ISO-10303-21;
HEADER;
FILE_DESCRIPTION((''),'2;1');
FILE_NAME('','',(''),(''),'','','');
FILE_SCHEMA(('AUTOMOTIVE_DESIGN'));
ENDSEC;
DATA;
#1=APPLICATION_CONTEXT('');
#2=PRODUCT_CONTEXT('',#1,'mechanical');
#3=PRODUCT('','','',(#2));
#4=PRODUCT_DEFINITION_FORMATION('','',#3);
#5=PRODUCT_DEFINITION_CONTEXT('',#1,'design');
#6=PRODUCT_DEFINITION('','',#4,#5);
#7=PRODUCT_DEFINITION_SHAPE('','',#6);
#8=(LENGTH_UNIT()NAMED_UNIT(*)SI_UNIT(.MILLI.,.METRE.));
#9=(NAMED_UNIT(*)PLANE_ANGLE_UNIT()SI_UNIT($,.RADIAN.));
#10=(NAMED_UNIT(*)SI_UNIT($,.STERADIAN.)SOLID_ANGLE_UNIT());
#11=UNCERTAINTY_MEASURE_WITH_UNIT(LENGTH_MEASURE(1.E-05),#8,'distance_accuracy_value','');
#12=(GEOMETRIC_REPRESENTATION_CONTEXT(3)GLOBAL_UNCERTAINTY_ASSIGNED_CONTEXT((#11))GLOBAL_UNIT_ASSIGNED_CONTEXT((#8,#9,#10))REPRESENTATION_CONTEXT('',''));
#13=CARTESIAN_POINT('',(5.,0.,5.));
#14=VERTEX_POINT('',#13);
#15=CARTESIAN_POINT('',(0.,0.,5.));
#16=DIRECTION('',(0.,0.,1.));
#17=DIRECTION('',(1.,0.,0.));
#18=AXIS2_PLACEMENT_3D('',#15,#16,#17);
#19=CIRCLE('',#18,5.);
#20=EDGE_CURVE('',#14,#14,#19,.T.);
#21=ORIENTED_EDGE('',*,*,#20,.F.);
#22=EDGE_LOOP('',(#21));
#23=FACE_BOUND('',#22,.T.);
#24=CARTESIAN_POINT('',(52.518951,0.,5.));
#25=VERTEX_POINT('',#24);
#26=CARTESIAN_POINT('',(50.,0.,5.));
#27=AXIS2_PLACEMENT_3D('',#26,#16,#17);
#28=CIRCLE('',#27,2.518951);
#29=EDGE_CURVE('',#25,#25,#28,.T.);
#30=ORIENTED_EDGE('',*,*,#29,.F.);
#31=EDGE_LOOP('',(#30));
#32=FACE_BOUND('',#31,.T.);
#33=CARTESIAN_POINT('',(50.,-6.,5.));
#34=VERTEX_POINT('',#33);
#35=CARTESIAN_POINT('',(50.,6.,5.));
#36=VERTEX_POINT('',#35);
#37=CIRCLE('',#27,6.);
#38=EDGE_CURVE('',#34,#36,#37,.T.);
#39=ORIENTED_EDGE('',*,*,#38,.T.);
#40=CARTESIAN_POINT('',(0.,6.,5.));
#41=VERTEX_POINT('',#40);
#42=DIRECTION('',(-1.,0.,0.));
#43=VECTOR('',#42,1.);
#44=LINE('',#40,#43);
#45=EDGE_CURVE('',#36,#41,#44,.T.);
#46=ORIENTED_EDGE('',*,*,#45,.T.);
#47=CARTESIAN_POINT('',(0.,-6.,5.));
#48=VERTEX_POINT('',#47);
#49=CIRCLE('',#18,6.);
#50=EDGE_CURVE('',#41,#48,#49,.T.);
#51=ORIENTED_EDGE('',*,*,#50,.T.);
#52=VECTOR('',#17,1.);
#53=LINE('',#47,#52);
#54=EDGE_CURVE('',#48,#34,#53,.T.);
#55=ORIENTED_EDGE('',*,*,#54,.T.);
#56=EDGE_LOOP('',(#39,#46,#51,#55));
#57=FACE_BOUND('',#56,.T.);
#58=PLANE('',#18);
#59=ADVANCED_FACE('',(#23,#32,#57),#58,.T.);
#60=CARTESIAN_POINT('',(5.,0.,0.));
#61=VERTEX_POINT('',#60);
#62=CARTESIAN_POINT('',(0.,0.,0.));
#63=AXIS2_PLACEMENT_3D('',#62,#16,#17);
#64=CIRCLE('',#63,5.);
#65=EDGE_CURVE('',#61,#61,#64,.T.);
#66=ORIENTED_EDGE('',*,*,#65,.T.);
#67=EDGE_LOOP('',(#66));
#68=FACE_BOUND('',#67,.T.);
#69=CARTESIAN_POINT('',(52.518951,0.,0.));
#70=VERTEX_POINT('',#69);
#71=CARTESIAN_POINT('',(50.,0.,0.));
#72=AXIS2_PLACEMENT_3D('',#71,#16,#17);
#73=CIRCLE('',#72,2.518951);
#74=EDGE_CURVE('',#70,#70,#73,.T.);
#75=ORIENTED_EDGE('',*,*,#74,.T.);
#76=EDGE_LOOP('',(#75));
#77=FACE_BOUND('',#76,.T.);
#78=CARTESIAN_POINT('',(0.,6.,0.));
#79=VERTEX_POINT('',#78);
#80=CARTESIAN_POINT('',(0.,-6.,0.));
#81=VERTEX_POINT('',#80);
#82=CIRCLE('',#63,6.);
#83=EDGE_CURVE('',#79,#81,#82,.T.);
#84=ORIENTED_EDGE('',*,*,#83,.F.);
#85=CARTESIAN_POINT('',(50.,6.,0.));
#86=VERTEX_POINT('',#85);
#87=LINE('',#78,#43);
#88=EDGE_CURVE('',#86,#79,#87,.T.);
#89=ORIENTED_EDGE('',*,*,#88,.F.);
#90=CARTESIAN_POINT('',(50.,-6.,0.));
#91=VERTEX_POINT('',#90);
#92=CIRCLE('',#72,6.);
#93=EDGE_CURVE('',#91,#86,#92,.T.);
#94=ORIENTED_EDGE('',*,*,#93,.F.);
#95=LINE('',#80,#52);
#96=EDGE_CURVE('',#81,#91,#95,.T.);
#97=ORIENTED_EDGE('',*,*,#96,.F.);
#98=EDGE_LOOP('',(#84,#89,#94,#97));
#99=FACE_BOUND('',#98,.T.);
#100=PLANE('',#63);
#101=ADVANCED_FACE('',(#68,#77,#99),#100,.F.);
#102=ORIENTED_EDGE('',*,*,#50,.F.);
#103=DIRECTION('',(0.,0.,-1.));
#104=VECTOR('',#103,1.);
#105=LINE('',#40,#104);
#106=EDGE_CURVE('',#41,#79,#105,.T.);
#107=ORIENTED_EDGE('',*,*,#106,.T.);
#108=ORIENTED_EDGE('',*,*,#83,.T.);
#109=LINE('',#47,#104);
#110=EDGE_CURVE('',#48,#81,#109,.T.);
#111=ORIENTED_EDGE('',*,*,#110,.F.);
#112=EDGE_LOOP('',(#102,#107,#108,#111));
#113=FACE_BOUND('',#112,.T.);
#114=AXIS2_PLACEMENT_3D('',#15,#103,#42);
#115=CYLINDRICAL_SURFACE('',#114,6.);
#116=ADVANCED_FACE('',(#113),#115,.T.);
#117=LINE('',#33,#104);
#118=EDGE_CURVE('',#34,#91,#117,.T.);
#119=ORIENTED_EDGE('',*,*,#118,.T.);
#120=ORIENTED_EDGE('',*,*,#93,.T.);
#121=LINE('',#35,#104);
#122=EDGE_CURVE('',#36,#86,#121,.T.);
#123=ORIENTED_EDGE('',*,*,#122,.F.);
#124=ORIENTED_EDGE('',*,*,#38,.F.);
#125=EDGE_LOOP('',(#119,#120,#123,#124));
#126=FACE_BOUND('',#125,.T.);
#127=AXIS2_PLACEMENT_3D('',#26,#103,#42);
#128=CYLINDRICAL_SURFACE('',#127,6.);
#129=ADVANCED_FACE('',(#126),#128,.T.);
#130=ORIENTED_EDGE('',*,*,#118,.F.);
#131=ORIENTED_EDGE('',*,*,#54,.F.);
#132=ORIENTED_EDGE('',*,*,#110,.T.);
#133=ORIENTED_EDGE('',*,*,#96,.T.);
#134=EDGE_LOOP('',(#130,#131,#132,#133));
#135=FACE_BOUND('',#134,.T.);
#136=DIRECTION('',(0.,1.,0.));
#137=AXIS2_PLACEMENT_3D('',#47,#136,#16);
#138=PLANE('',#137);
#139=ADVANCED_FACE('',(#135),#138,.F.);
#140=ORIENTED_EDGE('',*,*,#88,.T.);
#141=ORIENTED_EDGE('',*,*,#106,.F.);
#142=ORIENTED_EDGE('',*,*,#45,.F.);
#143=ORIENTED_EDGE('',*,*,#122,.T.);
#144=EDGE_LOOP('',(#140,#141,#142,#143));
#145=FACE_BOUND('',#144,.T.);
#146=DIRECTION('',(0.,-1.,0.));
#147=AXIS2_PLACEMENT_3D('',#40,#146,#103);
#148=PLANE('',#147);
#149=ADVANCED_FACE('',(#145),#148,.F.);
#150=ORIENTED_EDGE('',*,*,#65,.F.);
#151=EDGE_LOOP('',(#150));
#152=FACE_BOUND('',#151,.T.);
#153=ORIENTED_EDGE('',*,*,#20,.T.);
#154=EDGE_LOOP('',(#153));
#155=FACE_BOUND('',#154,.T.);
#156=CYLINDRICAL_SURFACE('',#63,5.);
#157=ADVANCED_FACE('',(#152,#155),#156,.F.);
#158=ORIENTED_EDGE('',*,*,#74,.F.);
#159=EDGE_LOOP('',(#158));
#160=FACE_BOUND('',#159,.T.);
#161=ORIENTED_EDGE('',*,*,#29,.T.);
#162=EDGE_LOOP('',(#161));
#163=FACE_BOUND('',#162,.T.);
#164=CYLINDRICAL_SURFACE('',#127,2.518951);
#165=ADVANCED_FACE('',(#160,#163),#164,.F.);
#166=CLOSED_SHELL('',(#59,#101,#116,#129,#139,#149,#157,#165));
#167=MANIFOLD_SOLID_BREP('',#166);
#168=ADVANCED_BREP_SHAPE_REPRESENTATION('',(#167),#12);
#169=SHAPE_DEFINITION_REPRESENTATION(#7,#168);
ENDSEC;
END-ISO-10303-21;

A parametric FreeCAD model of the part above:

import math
import FreeCAD as App
import Part
import Sketcher
from FreeCAD import Vector

doc = App.newDocument("Part")
body = doc.addObject("PartDesign::Body", "Body")

sketch1 = body.newObject("Sketcher::SketchObject", "Sketch")
sketch1.AttachmentSupport = (doc.getObject("XY_Plane"), [""])
sketch1.MapMode = "FlatFace"
sketch1.addGeometry([
    Part.LineSegment(Vector(50, 6, 0), Vector(0, 6, 0)),
    Part.ArcOfCircle(Part.Circle(Vector(0, 0, 0), Vector(0, 0, 1), 6), math.radians(90), math.radians(270)),
    Part.LineSegment(Vector(0, -6, 0), Vector(50, -6, 0)),
    Part.ArcOfCircle(Part.Circle(Vector(50, 0, 0), Vector(0, 0, 1), 6), math.radians(-90), math.radians(90)),
    Part.Circle(Vector(50, 0, 0), Vector(0, 0, 1), 2.5),
], False)
sketch1.addConstraint([
    Sketcher.Constraint("Tangent", 0, 2, 1, 1),
    Sketcher.Constraint("Tangent", 1, 2, 2, 1),
    Sketcher.Constraint("Tangent", 2, 2, 3, 1),
    Sketcher.Constraint("Tangent", 3, 2, 0, 1),
    Sketcher.Constraint("Horizontal", 0),
    Sketcher.Constraint("Horizontal", 2),
    Sketcher.Constraint("Coincident", 1, 3, -1, 1),
    Sketcher.Constraint("Coincident", 4, 3, 3, 3),
    Sketcher.Constraint("Radius", 1, 6.0),
    Sketcher.Constraint("DistanceX", 0, 2, 0, 1, 50.0),
    Sketcher.Constraint("Diameter", 4, 5.037903),
])
pad1 = body.newObject("PartDesign::Pad", "Pad")
pad1.Profile = sketch1
pad1.Length = 5

sketch2 = body.newObject("Sketcher::SketchObject", "Sketch001")
sketch2.AttachmentSupport = (doc.getObject("XY_Plane"), [""])
sketch2.MapMode = "FlatFace"
sketch2.AttachmentOffset = App.Placement(Vector(0, 0, 5), App.Rotation())
sketch2.addGeometry(Part.Circle(Vector(0, 0, 0), Vector(0, 0, 1), 5), False)
sketch2.addConstraint([
    Sketcher.Constraint("Coincident", 0, 3, -1, 1),
    Sketcher.Constraint("Diameter", 0, 10.0),
])
pocket1 = body.newObject("PartDesign::Pocket", "Pocket")
pocket1.Profile = sketch2
pocket1.Length = 5

doc.recompute()
